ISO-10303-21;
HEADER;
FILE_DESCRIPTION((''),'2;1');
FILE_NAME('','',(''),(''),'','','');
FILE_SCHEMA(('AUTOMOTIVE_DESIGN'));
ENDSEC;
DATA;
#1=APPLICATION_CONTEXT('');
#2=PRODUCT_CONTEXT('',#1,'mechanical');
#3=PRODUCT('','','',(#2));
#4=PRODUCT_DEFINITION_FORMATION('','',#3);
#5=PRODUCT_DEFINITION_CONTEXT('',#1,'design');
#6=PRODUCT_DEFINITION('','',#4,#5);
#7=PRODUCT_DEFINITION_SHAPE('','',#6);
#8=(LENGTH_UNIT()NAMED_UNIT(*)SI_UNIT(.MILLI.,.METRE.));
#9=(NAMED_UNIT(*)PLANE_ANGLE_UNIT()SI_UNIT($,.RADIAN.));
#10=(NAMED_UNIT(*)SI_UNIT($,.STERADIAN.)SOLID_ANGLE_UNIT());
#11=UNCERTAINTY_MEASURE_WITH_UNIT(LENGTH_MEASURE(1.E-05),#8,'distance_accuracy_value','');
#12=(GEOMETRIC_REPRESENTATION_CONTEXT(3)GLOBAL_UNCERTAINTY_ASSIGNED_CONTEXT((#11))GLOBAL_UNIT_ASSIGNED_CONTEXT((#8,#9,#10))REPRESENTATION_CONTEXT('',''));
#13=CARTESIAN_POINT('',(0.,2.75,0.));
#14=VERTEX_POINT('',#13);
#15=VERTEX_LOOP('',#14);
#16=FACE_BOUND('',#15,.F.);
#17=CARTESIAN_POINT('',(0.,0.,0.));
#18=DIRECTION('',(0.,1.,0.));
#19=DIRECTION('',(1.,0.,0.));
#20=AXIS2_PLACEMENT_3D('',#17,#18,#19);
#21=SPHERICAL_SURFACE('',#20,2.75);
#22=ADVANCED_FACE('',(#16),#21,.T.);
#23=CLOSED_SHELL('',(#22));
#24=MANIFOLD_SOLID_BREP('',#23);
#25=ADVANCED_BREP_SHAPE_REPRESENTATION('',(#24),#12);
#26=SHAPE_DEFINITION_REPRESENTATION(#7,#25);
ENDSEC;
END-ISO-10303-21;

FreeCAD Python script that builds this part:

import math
import FreeCAD as App
import Part
import Sketcher
from FreeCAD import Vector

doc = App.newDocument("Part")
body = doc.addObject("PartDesign::Body", "Body")

# Sketch on XY plane
sketch1 = doc.addObject("Sketcher::SketchObject", "Sketch")
body.addObject(sketch1)
sketch1.AttachmentSupport = (doc.XY_Plane, [""])
sketch1.MapMode = "FlatFace"
sketch1.addGeometry(Part.LineSegment(Vector(0, 2.8, 0), Vector(0, -2.8, 0)), False)
sketch1.addGeometry(Part.ArcOfCircle(Part.Circle(Vector(0, 0, 0), Vector(0, 0, 1), 2.8), math.radians(-90), math.radians(90)), False)
sketch1.addConstraint(Sketcher.Constraint("Coincident", 0, 1, 1, 2))
sketch1.addConstraint(Sketcher.Constraint("Coincident", 1, 1, 0, 2))
sketch1.addConstraint(Sketcher.Constraint("Vertical", 0))
sketch1.addConstraint(Sketcher.Constraint("Coincident", 1, 3, -1, 1))
sketch1.addConstraint(Sketcher.Constraint("PointOnObject", 0, 1, -2))
sketch1.addConstraint(Sketcher.Constraint("Radius", 1, 2.75))
revolution = doc.addObject("PartDesign::Revolution", "Revolution")
body.addObject(revolution)
revolution.Profile = sketch1
revolution.ReferenceAxis = (sketch1, ["V_Axis"])
revolution.Angle = 360

doc.recompute()
